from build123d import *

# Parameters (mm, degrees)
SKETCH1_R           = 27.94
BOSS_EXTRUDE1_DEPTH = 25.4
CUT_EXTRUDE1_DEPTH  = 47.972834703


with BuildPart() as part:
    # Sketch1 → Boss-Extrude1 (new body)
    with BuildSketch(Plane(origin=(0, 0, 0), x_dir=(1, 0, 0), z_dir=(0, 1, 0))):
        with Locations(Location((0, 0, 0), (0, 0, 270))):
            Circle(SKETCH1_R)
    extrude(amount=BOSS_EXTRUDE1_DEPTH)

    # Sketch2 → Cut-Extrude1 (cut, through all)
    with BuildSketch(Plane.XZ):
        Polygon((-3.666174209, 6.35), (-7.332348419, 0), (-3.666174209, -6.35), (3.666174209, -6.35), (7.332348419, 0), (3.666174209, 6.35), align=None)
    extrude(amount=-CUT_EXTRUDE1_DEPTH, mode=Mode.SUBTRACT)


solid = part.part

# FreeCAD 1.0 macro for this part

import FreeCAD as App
import Part
import Sketcher
from FreeCAD import Vector
Q = App.Units.Quantity

doc = App.newDocument("Part")
body = doc.addObject("PartDesign::Body", "Body")

# Sketch on XZ plane
sketch1 = body.newObject("Sketcher::SketchObject", "Sketch")
sketch1.AttachmentSupport = (doc.getObject("XZ_Plane"), [""])
sketch1.MapMode = "FlatFace"
sketch1.addGeometry(Part.Circle(Vector(0, 0, 0), Vector(0, 0, 1), 27.94), False)
sketch1.addConstraint([
    Sketcher.Constraint("Coincident", 0, 3, -1, 1),
    Sketcher.Constraint("Diameter", 0, Q("2.2 in")),
])
pad1 = body.newObject("PartDesign::Pad", "Pad")
pad1.Profile = sketch1
pad1.Length = Q("1 in")
pad1.Reversed = True

# Sketch on XZ plane
sketch2 = body.newObject("Sketcher::SketchObject", "Sketch001")
sketch2.AttachmentSupport = (doc.getObject("XZ_Plane"), [""])
sketch2.MapMode = "FlatFace"
sketch2.addGeometry([
    Part.LineSegment(Vector(-3.666174, 6.35, 0), Vector(-7.332348, 0, 0)),  # 0
    Part.LineSegment(Vector(-7.332348, 0, 0), Vector(-3.666174, -6.35, 0)),  # 1
    Part.LineSegment(Vector(-3.666174, -6.35, 0), Vector(3.666174, -6.35, 0)),  # 2
    Part.LineSegment(Vector(3.666174, -6.35, 0), Vector(7.332348, 0, 0)),  # 3
    Part.LineSegment(Vector(7.332348, 0, 0), Vector(3.666174, 6.35, 0)),  # 4
    Part.LineSegment(Vector(3.666174, 6.35, 0), Vector(-3.666174, 6.35, 0)),  # 5
], False)
sketch2.addConstraint([
    Sketcher.Constraint("Coincident", 0, 2, 1, 1),
    Sketcher.Constraint("Coincident", 1, 2, 2, 1),
    Sketcher.Constraint("Coincident", 2, 2, 3, 1),
    Sketcher.Constraint("Coincident", 3, 2, 4, 1),
    Sketcher.Constraint("Coincident", 4, 2, 5, 1),
    Sketcher.Constraint("Coincident", 5, 2, 0, 1),
    Sketcher.Constraint("Horizontal", 2),
    Sketcher.Constraint("Horizontal", 5),
    Sketcher.Constraint("Symmetric", 0, 2, 3, 2, -1, 1),
    Sketcher.Constraint("Symmetric", 1, 2, 4, 2, -1, 1),
    Sketcher.Constraint("PointOnObject", 0, 2, -1),
    Sketcher.Constraint("Parallel", 0, 3),
    Sketcher.Constraint("Vertical", 2, 2, 4, 2),
    Sketcher.Constraint("Angle", 0, Q("-120 deg")),
    Sketcher.Constraint("DistanceY", 2, 2, 4, 2, Q("0.5 in")),
    Sketcher.Constraint("DistanceX", 2, 1, 2, 2, 7.332348),
])
pocket1 = body.newObject("PartDesign::Pocket", "Pocket")
pocket1.Profile = sketch2
pocket1.Type = "ThroughAll"

doc.recompute()
